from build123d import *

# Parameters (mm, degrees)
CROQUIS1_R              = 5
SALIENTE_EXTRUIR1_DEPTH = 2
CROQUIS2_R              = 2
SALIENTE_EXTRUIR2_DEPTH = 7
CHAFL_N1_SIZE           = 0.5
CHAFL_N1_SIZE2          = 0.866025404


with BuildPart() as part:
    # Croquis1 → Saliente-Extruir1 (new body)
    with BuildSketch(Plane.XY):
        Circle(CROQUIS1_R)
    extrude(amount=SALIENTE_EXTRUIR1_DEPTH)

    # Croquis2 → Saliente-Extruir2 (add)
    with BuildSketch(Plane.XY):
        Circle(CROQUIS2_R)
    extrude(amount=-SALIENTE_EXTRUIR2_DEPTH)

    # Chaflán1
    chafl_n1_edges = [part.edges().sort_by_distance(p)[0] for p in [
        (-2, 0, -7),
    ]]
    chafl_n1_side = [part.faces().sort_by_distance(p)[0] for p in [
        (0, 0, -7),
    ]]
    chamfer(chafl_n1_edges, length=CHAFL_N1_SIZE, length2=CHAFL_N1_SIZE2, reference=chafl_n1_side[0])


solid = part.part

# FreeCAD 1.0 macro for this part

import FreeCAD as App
import Part
import Sketcher


def edges_at(feature, points):
    """Names of the edges that pass closest to the given points."""
    edges = feature.Shape.Edges
    near = lambda p: min(range(len(edges)), key=lambda i: edges[i].distToShape(Part.Vertex(*p))[0])
    return sorted({f"Edge{near(p) + 1}" for p in points})

doc = App.newDocument("Part")
body = doc.addObject("PartDesign::Body", "Body")

# Sketch on XY plane
sketch1 = doc.addObject("Sketcher::SketchObject", "Sketch")
body.addObject(sketch1)
sketch1.AttachmentSupport = (doc.XY_Plane, [""])
sketch1.MapMode = "FlatFace"
sketch1.addGeometry(Part.Circle(App.Vector(0, 0, 0), App.Vector(0, 0, 1), 5), False)
sketch1.addConstraint(Sketcher.Constraint("Coincident", 0, 3, -1, 1))
sketch1.addConstraint(Sketcher.Constraint("Diameter", 0, 10.0))
pad1 = doc.addObject("PartDesign::Pad", "Pad")
body.addObject(pad1)
pad1.Profile = sketch1
pad1.Length = 2

# Sketch on XY plane
sketch2 = doc.addObject("Sketcher::SketchObject", "Sketch001")
body.addObject(sketch2)
sketch2.AttachmentSupport = (doc.XY_Plane, [""])
sketch2.MapMode = "FlatFace"
sketch2.addGeometry(Part.Circle(App.Vector(0, 0, 0), App.Vector(0, 0, 1), 2), False)
sketch2.addConstraint(Sketcher.Constraint("Coincident", 0, 3, -1, 1))
sketch2.addConstraint(Sketcher.Constraint("Diameter", 0, 4.0))
pad2 = doc.addObject("PartDesign::Pad", "Pad001")
body.addObject(pad2)
pad2.Profile = sketch2
pad2.Length = 7
pad2.Reversed = True
doc.recompute()

chamfer = doc.addObject("PartDesign::Chamfer", "Chamfer")
body.addObject(chamfer)
chamfer.Base = (pad2, edges_at(pad2, [(-2, 0, -7)]))
chamfer.ChamferType = "Two distances"
chamfer.Size = 0.5
chamfer.Size2 = 0.866025
chamfer.FlipDirection = True

doc.recompute()
